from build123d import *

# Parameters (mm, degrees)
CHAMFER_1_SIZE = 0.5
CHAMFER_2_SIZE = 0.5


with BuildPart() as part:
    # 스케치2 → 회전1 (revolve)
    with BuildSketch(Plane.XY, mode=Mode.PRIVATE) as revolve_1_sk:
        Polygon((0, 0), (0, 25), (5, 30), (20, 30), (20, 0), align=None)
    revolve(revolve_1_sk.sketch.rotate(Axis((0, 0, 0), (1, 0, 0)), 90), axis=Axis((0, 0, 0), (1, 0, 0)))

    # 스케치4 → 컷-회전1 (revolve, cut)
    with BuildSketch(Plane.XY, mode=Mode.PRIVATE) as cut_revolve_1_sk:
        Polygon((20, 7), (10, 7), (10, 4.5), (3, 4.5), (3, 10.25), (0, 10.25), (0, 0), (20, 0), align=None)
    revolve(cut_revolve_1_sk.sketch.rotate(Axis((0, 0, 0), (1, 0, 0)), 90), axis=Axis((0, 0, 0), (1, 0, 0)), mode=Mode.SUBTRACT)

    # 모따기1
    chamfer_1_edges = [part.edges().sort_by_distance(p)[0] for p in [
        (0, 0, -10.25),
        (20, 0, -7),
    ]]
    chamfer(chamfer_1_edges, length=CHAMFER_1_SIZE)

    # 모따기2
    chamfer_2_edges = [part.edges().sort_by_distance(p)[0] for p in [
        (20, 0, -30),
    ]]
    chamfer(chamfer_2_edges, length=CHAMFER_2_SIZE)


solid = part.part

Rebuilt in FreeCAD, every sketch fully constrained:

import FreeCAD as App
import Part
import Sketcher
from FreeCAD import Vector


def edges_at(feature, points):
    """Names of the edges that pass closest to the given points."""
    edges = feature.Shape.Edges
    near = lambda p: min(range(len(edges)), key=lambda i: edges[i].distToShape(Part.Vertex(*p))[0])
    return sorted({f"Edge{near(p) + 1}" for p in points})

doc = App.newDocument("Part")
params = doc.addObject("Spreadsheet::Sheet", "Params")
for row, (alias, value) in enumerate([
    ("sketch1_width", "20 mm"),
    ("sketch1_width2", "15 mm"),
    ("sketch1_height", "25 mm"),
    ("sketch1_height2", "30 mm"),
    ("revolution_angle", "360 deg"),
    ("sketch2_width", "10 mm"),
    ("sketch2_width2", "7 mm"),
    ("sketch2_width3", "3 mm"),
    ("sketch2_height", "2.5 mm"),
    ("sketch2_height2", "5.75 mm"),
    ("groove_angle", "360 deg"),
    ("chamfer_size", "0.5 mm"),
    ("chamfer2_size", "0.5 mm"),
], start=1):
    params.set(f"A{row}", alias)
    params.set(f"B{row}", "=" + value)
    params.setAlias(f"B{row}", alias)

body = doc.addObject("PartDesign::Body", "Body")

sketch1 = doc.addObject("Sketcher::SketchObject", "Sketch")
body.addObject(sketch1)
sketch1.AttachmentSupport = (doc.XY_Plane, [""])
sketch1.MapMode = "FlatFace"
sketch1.addGeometry(Part.LineSegment(Vector(0, 25, 0), Vector(0, 0, 0)), False)
sketch1.addGeometry(Part.LineSegment(Vector(0, 0, 0), Vector(20, 0, 0)), False)
sketch1.addGeometry(Part.LineSegment(Vector(20, 0, 0), Vector(20, 30, 0)), False)
sketch1.addGeometry(Part.LineSegment(Vector(20, 30, 0), Vector(5, 30, 0)), False)
sketch1.addGeometry(Part.LineSegment(Vector(5, 30, 0), Vector(0, 25, 0)), False)
sketch1.addConstraint(Sketcher.Constraint("Coincident", 0, 2, 1, 1))
sketch1.addConstraint(Sketcher.Constraint("Coincident", 1, 2, 2, 1))
sketch1.addConstraint(Sketcher.Constraint("Coincident", 2, 2, 3, 1))
sketch1.addConstraint(Sketcher.Constraint("Coincident", 3, 2, 4, 1))
sketch1.addConstraint(Sketcher.Constraint("Coincident", 4, 2, 0, 1))
sketch1.addConstraint(Sketcher.Constraint("Vertical", 0))
sketch1.addConstraint(Sketcher.Constraint("Horizontal", 1))
sketch1.addConstraint(Sketcher.Constraint("Vertical", 2))
sketch1.addConstraint(Sketcher.Constraint("Horizontal", 3))
sketch1.addConstraint(Sketcher.Constraint("Coincident", 0, 2, -1, 1))
sketch1.addConstraint(Sketcher.Constraint("DistanceX", 1, 1, 1, 2, 20.0))
sketch1.addConstraint(Sketcher.Constraint("DistanceX", 3, 2, 3, 1, 15.0))
sketch1.addConstraint(Sketcher.Constraint("DistanceY", 0, 2, 0, 1, 25.0))
sketch1.addConstraint(Sketcher.Constraint("DistanceY", 2, 1, 2, 2, 30.0))
sketch1.setExpression("Constraints[10]", "Params.sketch1_width")
sketch1.setExpression("Constraints[11]", "Params.sketch1_width2")
sketch1.setExpression("Constraints[12]", "Params.sketch1_height")
sketch1.setExpression("Constraints[13]", "Params.sketch1_height2")
revolution = doc.addObject("PartDesign::Revolution", "Revolution")
body.addObject(revolution)
revolution.Profile = sketch1
revolution.ReferenceAxis = (sketch1, ["H_Axis"])
revolution.setExpression("Angle", "Params.revolution_angle")

sketch2 = doc.addObject("Sketcher::SketchObject", "Sketch001")
body.addObject(sketch2)
sketch2.AttachmentSupport = (doc.XY_Plane, [""])
sketch2.MapMode = "FlatFace"
sketch2.addGeometry(Part.LineSegment(Vector(20, 7, 0), Vector(10, 7, 0)), False)
sketch2.addGeometry(Part.LineSegment(Vector(10, 7, 0), Vector(10, 4.5, 0)), False)
sketch2.addGeometry(Part.LineSegment(Vector(10, 4.5, 0), Vector(3, 4.5, 0)), False)
sketch2.addGeometry(Part.LineSegment(Vector(3, 4.5, 0), Vector(3, 10.2, 0)), False)
sketch2.addGeometry(Part.LineSegment(Vector(3, 10.2, 0), Vector(0, 10.2, 0)), False)
sketch2.addGeometry(Part.LineSegment(Vector(0, 10.2, 0), Vector(0, 0, 0)), False)
sketch2.addGeometry(Part.LineSegment(Vector(0, 0, 0), Vector(20, 0, 0)), False)
sketch2.addGeometry(Part.LineSegment(Vector(20, 0, 0), Vector(20, 7, 0)), False)
sketch2.addConstraint(Sketcher.Constraint("Coincident", 0, 2, 1, 1))
sketch2.addConstraint(Sketcher.Constraint("Coincident", 1, 2, 2, 1))
sketch2.addConstraint(Sketcher.Constraint("Coincident", 2, 2, 3, 1))
sketch2.addConstraint(Sketcher.Constraint("Coincident", 3, 2, 4, 1))
sketch2.addConstraint(Sketcher.Constraint("Coincident", 4, 2, 5, 1))
sketch2.addConstraint(Sketcher.Constraint("Coincident", 5, 2, 6, 1))
sketch2.addConstraint(Sketcher.Constraint("Coincident", 6, 2, 7, 1))
sketch2.addConstraint(Sketcher.Constraint("Coincident", 7, 2, 0, 1))
sketch2.addConstraint(Sketcher.Constraint("Horizontal", 0))
sketch2.addConstraint(Sketcher.Constraint("Vertical", 1))
sketch2.addConstraint(Sketcher.Constraint("Horizontal", 2))
sketch2.addConstraint(Sketcher.Constraint("Vertical", 3))
sketch2.addConstraint(Sketcher.Constraint("Horizontal", 4))
sketch2.addConstraint(Sketcher.Constraint("Vertical", 5))
sketch2.addConstraint(Sketcher.Constraint("Horizontal", 6))
sketch2.addConstraint(Sketcher.Constraint("Vertical", 7))
sketch2.addConstraint(Sketcher.Constraint("Coincident", 5, 2, -1, 1))
sketch2.addConstraint(Sketcher.Constraint("Equal", 2, 7))
sketch2.addConstraint(Sketcher.Constraint("DistanceX", 0, 2, 0, 1, 10.0))
sketch2.addConstraint(Sketcher.Constraint("DistanceX", 2, 2, 2, 1, 7.0))
sketch2.addConstraint(Sketcher.Constraint("DistanceX", 4, 2, 4, 1, 3.0))
sketch2.addConstraint(Sketcher.Constraint("DistanceY", 1, 2, 1, 1, 2.5))
sketch2.addConstraint(Sketcher.Constraint("DistanceY", 3, 1, 3, 2, 5.75))
sketch2.setExpression("Constraints[18]", "Params.sketch2_width")
sketch2.setExpression("Constraints[19]", "Params.sketch2_width2")
sketch2.setExpression("Constraints[20]", "Params.sketch2_width3")
sketch2.setExpression("Constraints[21]", "Params.sketch2_height")
sketch2.setExpression("Constraints[22]", "Params.sketch2_height2")
groove = doc.addObject("PartDesign::Groove", "Groove")
body.addObject(groove)
groove.Profile = sketch2
groove.ReferenceAxis = (sketch2, ["H_Axis"])
groove.setExpression("Angle", "Params.groove_angle")
doc.recompute()

chamfer = doc.addObject("PartDesign::Chamfer", "Chamfer")
body.addObject(chamfer)
chamfer.Base = (groove, edges_at(groove, [(0, 0, -10.25), (20, 0, -7)]))
chamfer.setExpression("Size", "Params.chamfer_size")
doc.recompute()

chamfer2 = doc.addObject("PartDesign::Chamfer", "Chamfer001")
body.addObject(chamfer2)
chamfer2.Base = (chamfer, edges_at(chamfer, [(20, 0, -30)]))
chamfer2.setExpression("Size", "Params.chamfer2_size")

doc.recompute()
